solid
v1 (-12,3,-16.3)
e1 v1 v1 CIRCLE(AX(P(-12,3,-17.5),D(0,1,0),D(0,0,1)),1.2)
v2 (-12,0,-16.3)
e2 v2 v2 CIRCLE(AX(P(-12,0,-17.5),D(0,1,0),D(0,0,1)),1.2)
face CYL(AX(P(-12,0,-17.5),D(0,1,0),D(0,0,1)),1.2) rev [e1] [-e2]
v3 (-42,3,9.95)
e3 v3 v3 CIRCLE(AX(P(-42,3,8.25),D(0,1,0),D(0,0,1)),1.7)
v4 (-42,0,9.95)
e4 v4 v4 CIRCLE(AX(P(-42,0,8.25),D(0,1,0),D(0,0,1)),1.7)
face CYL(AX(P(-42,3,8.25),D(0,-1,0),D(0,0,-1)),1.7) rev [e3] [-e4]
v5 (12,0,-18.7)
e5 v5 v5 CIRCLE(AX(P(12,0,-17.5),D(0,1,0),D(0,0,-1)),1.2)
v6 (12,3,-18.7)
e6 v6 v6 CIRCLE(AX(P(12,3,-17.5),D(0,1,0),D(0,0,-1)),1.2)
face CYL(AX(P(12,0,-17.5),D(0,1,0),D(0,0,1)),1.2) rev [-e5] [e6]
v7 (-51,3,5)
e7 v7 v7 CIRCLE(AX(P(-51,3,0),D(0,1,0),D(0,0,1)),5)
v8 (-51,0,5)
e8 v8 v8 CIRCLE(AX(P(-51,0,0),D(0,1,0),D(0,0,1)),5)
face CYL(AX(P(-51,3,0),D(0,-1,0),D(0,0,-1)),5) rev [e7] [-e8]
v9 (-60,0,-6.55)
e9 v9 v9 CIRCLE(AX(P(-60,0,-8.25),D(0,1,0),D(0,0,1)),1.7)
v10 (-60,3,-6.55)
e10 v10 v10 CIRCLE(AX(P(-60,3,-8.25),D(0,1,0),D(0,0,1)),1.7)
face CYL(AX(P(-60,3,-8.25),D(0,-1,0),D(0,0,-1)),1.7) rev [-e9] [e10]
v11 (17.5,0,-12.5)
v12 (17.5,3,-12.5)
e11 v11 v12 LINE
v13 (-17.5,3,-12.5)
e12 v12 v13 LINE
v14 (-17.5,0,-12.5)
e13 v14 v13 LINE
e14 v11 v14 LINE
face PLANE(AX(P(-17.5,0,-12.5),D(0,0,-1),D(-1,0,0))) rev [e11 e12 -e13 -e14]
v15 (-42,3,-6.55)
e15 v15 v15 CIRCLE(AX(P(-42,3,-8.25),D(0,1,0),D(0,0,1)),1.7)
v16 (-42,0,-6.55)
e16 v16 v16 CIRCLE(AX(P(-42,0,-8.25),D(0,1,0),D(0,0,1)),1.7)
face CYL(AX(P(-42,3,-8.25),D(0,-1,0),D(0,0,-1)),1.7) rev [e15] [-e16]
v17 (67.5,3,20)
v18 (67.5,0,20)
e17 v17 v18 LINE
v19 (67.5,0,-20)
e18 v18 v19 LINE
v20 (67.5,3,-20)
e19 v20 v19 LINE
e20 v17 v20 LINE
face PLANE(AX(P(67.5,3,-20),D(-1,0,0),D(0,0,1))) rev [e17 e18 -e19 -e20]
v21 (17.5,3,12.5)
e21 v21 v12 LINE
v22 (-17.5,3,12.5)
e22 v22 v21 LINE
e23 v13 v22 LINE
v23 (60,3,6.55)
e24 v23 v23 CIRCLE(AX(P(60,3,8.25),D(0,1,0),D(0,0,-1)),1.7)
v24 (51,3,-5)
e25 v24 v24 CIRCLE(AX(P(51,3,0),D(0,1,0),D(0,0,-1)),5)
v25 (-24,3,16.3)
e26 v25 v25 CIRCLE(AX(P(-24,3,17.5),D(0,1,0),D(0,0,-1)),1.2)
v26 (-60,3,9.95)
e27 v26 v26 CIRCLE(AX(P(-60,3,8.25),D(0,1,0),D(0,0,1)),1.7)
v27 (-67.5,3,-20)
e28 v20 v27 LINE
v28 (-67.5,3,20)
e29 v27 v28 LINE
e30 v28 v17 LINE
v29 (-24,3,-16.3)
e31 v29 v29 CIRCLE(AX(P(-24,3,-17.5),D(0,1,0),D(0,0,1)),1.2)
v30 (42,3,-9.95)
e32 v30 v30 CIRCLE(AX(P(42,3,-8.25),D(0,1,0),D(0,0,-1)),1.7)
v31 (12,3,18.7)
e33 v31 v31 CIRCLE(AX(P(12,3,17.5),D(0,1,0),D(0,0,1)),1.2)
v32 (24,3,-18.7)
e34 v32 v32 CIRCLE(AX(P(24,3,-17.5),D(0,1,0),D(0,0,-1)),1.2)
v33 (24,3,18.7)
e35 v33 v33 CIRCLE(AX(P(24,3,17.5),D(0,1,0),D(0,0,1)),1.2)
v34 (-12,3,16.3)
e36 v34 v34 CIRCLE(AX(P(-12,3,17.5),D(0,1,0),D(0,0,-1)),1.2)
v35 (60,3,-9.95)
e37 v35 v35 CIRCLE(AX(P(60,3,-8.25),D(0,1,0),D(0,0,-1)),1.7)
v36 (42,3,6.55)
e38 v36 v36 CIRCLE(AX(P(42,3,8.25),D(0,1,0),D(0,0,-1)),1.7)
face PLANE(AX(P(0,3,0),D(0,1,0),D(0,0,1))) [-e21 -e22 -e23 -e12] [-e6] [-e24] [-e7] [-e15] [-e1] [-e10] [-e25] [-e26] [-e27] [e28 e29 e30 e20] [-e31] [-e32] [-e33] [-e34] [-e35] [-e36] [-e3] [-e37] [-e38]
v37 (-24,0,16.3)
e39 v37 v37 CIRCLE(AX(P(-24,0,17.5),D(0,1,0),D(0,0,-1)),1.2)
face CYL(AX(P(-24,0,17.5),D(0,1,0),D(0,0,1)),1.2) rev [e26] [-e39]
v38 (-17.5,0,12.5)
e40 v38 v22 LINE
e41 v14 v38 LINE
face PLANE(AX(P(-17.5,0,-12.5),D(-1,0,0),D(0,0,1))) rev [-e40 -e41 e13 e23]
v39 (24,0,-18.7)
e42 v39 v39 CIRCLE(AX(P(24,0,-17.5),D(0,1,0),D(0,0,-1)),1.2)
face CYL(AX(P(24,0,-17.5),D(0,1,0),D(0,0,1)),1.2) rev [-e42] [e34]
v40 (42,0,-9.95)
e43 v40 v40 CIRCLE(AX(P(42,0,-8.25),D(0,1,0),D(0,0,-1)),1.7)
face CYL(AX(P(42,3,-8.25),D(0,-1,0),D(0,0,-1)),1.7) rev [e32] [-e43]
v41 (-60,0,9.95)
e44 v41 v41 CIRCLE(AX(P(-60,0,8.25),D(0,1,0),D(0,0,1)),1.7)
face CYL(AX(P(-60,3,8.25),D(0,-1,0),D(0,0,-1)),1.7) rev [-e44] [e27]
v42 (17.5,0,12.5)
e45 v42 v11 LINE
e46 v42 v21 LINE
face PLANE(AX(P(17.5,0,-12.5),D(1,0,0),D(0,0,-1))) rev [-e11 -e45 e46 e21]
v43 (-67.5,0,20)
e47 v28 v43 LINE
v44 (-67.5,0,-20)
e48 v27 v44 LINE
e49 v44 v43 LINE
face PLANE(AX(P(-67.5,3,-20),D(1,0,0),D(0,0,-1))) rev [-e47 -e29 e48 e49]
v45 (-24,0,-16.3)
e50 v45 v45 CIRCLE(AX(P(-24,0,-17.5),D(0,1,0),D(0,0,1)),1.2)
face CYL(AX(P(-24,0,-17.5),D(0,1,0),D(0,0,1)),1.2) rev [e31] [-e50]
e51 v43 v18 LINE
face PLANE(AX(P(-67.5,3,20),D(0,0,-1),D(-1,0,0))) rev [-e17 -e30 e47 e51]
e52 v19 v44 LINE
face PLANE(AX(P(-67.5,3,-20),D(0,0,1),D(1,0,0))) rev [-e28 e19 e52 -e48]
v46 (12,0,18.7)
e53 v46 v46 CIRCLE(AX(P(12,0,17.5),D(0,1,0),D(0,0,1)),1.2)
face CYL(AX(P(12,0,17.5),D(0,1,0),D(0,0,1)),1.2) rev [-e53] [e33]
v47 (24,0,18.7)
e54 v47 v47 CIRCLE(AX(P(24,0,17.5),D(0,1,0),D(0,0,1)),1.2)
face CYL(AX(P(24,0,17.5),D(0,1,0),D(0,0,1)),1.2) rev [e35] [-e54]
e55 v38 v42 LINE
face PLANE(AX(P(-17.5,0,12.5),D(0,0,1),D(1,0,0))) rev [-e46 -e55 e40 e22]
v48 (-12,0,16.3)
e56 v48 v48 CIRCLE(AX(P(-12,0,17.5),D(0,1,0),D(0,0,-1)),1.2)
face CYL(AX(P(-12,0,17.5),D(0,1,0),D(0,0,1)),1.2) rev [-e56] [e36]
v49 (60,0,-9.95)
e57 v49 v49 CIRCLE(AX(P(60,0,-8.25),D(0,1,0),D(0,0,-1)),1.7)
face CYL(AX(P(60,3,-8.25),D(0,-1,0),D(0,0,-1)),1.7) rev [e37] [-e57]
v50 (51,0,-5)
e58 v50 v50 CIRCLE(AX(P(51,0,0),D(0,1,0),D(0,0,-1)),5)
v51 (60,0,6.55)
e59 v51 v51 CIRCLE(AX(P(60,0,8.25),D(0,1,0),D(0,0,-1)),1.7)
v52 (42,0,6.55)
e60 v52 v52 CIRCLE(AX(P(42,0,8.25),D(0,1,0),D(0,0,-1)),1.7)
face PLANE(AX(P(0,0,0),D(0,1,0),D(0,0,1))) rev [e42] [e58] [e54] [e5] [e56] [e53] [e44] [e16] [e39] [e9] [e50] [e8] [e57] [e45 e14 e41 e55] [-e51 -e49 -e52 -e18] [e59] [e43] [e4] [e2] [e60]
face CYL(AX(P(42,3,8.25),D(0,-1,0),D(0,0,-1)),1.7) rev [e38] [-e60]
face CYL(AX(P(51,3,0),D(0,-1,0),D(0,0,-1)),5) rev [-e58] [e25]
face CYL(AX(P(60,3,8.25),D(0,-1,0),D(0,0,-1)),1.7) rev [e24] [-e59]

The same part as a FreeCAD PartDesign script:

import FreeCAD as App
import Part
import Sketcher

V = App.Vector
Q = App.Units.Quantity


def add_polygon(sketch, points):
    """Adds a closed chain of lines whose ends are joined by coincident constraints."""
    first, n = sketch.GeometryCount, len(points)
    for a, b in zip(points, points[1:] + points[:1]):
        sketch.addGeometry(Part.LineSegment(App.Vector(*a, 0), App.Vector(*b, 0)), False)
    for i in range(n):
        sketch.addConstraint(Sketcher.Constraint("Coincident", first + i, 2, first + (i + 1) % n, 1))

doc = App.newDocument("Part")
params = doc.addObject("Spreadsheet::Sheet", "Params")
for row, (alias, value) in enumerate([
    ("sketch1_diameter", "10 mm"),
    ("sketch1_diameter2", "3.4 mm"),
    ("sketch1_width", "135 mm"),
    ("sketch1_width2", "10 mm"),
    ("sketch1_height", "40 mm"),
    ("pad1_length", "3 mm"),
    ("sketch2_diameter", "2.4 mm"),
    ("sketch3_width", "35 mm"),
    ("sketch3_height", "25 mm"),
], start=1):
    params.set(f"A{row}", alias)
    params.set(f"B{row}", "=" + value)
    params.setAlias(f"B{row}", alias)

body = doc.addObject("PartDesign::Body", "Body")

sketch1 = body.newObject("Sketcher::SketchObject", "Sketch")
sketch1.AttachmentSupport = (doc.getObject("XZ_Plane"), [""])
sketch1.MapMode = "FlatFace"
add_polygon(sketch1, [(-67.5, -20), (-67.5, 20), (67.5, 20), (67.5, -20)])
sketch1.addGeometry(Part.Circle(V(-60, 8.2, 0), V(0, 0, 1), 1.7), False)
sketch1.addGeometry(Part.Circle(V(-42, 8.2, 0), V(0, 0, 1), 1.7), False)
sketch1.addGeometry(Part.Circle(V(42, 8.2, 0), V(0, 0, 1), 1.7), False)
sketch1.addGeometry(Part.Circle(V(60, 8.2, 0), V(0, 0, 1), 1.7), False)
sketch1.addGeometry(Part.Circle(V(-51, 0, 0), V(0, 0, 1), 5), False)
sketch1.addGeometry(Part.Circle(V(-60, -8.2, 0), V(0, 0, 1), 1.7), False)
sketch1.addGeometry(Part.Circle(V(-42, -8.2, 0), V(0, 0, 1), 1.7), False)
add_polygon(sketch1, [(5, 10), (-5, 10), (-5, -10), (5, -10)])
sketch1.addGeometry(Part.Circle(V(51, 0, 0), V(0, 0, 1), 5), False)
sketch1.addGeometry(Part.Circle(V(42, -8.2, 0), V(0, 0, 1), 1.7), False)
sketch1.addGeometry(Part.Circle(V(60, -8.2, 0), V(0, 0, 1), 1.7), False)
sketch1.addConstraint(Sketcher.Constraint("Vertical", 0))
sketch1.addConstraint(Sketcher.Constraint("Horizontal", 1))
sketch1.addConstraint(Sketcher.Constraint("Vertical", 2))
sketch1.addConstraint(Sketcher.Constraint("Horizontal", 3))
sketch1.addConstraint(Sketcher.Constraint("Horizontal", 11))
sketch1.addConstraint(Sketcher.Constraint("Vertical", 12))
sketch1.addConstraint(Sketcher.Constraint("Horizontal", 13))
sketch1.addConstraint(Sketcher.Constraint("Vertical", 14))
sketch1.addConstraint(Sketcher.Constraint("Equal", 4, 5))
sketch1.addConstraint(Sketcher.Constraint("Equal", 5, 6))
sketch1.addConstraint(Sketcher.Constraint("Equal", 6, 7))
sketch1.addConstraint(Sketcher.Constraint("Equal", 7, 9))
sketch1.addConstraint(Sketcher.Constraint("Equal", 9, 10))
sketch1.addConstraint(Sketcher.Constraint("Equal", 8, 15))
sketch1.addConstraint(Sketcher.Constraint("Equal", 10, 16))
sketch1.addConstraint(Sketcher.Constraint("Equal", 16, 17))
sketch1.addConstraint(Sketcher.Constraint("Symmetric", 7, 3, 9, 3, -1, 1))
sketch1.addConstraint(Sketcher.Constraint("Symmetric", 6, 3, 10, 3, -1, 1))
sketch1.addConstraint(Sketcher.Constraint("Symmetric", 8, 3, 15, 3, -1, 1))
sketch1.addConstraint(Sketcher.Constraint("Symmetric", 5, 3, 16, 3, -1, 1))
sketch1.addConstraint(Sketcher.Constraint("Symmetric", 4, 3, 17, 3, -1, 1))
sketch1.addConstraint(Sketcher.Constraint("Symmetric", 0, 2, 2, 2, -1, 1))
sketch1.addConstraint(Sketcher.Constraint("Symmetric", 11, 2, 13, 2, -1, 1))
sketch1.addConstraint(Sketcher.Constraint("Symmetric", 5, 3, 6, 3, -2))
sketch1.addConstraint(Sketcher.Constraint("Symmetric", 4, 3, 7, 3, -2))
sketch1.addConstraint(Sketcher.Constraint("PointOnObject", 8, 3, -1))
sketch1.addConstraint(Sketcher.Constraint("Horizontal", 4, 3, 5, 3))
sketch1.addConstraint(Sketcher.Constraint("Diameter", 8, Q("10 mm")))
sketch1.addConstraint(Sketcher.Constraint("Diameter", 4, Q("3.4 mm")))
sketch1.addConstraint(Sketcher.Constraint("DistanceX", 1, 1, 1, 2, Q("135 mm")))
sketch1.addConstraint(Sketcher.Constraint("DistanceX", 11, 2, 11, 1, Q("10 mm")))
sketch1.addConstraint(Sketcher.Constraint("DistanceY", 0, 1, 0, 2, Q("40 mm")))
sketch1.addConstraint(Sketcher.Constraint("DistanceY", 12, 2, 12, 1, Q("20 mm")))
sketch1.addConstraint(Sketcher.Constraint("DistanceX", 4, 3, -1, 1, Q("60 mm")))
sketch1.addConstraint(Sketcher.Constraint("DistanceX", 5, 3, -1, 1, Q("42 mm")))
sketch1.addConstraint(Sketcher.Constraint("DistanceX", 8, 3, -1, 1, Q("51 mm")))
sketch1.addConstraint(Sketcher.Constraint("DistanceY", 9, 3, 4, 3, Q("16.5 mm")))
sketch1.setExpression("Constraints[35]", "Params.sketch1_diameter")
sketch1.setExpression("Constraints[36]", "Params.sketch1_diameter2")
sketch1.setExpression("Constraints[37]", "Params.sketch1_width")
sketch1.setExpression("Constraints[38]", "Params.sketch1_width2")
sketch1.setExpression("Constraints[39]", "Params.sketch1_height")
pad1 = body.newObject("PartDesign::Pad", "Pad")
pad1.Profile = sketch1
pad1.setExpression("Length", "Params.pad1_length")
pad1.Reversed = True

sketch2 = body.newObject("Sketcher::SketchObject", "Sketch001")
sketch2.AttachmentSupport = (doc.getObject("XZ_Plane"), [""])
sketch2.MapMode = "FlatFace"
sketch2.AttachmentOffset = App.Placement(V(0, 0, -3), App.Rotation())
sketch2.addGeometry(Part.Circle(V(-12, -17.5, 0), V(0, 0, 1), 1.2), False)
sketch2.addGeometry(Part.Circle(V(-12, 17.5, 0), V(0, 0, 1), 1.2), False)
sketch2.addGeometry(Part.Circle(V(-24, -17.5, 0), V(0, 0, 1), 1.2), False)
sketch2.addGeometry(Part.Circle(V(-24, 17.5, 0), V(0, 0, 1), 1.2), False)
sketch2.addGeometry(Part.Circle(V(24, 17.5, 0), V(0, 0, 1), 1.2), False)
sketch2.addGeometry(Part.Circle(V(24, -17.5, 0), V(0, 0, 1), 1.2), False)
sketch2.addGeometry(Part.Circle(V(12, 17.5, 0), V(0, 0, 1), 1.2), False)
sketch2.addGeometry(Part.Circle(V(12, -17.5, 0), V(0, 0, 1), 1.2), False)
sketch2.addConstraint(Sketcher.Constraint("Equal", 0, 1))
sketch2.addConstraint(Sketcher.Constraint("Equal", 1, 2))
sketch2.addConstraint(Sketcher.Constraint("Equal", 2, 3))
sketch2.addConstraint(Sketcher.Constraint("Equal", 3, 4))
sketch2.addConstraint(Sketcher.Constraint("Equal", 4, 5))
sketch2.addConstraint(Sketcher.Constraint("Equal", 5, 6))
sketch2.addConstraint(Sketcher.Constraint("Equal", 6, 7))
sketch2.addConstraint(Sketcher.Constraint("Symmetric", 2, 3, 4, 3, -1, 1))
sketch2.addConstraint(Sketcher.Constraint("Symmetric", 3, 3, 5, 3, -1, 1))
sketch2.addConstraint(Sketcher.Constraint("Symmetric", 0, 3, 6, 3, -1, 1))
sketch2.addConstraint(Sketcher.Constraint("Symmetric", 1, 3, 7, 3, -1, 1))
sketch2.addConstraint(Sketcher.Constraint("Symmetric", 3, 3, 4, 3, -2))
sketch2.addConstraint(Sketcher.Constraint("Symmetric", 1, 3, 6, 3, -2))
sketch2.addConstraint(Sketcher.Constraint("Horizontal", 0, 3, 2, 3))
sketch2.addConstraint(Sketcher.Constraint("Diameter", 0, Q("2.4 mm")))
sketch2.addConstraint(Sketcher.Constraint("DistanceX", 0, 3, -1, 1, Q("12 mm")))
sketch2.addConstraint(Sketcher.Constraint("DistanceX", 2, 3, -1, 1, Q("24 mm")))
sketch2.addConstraint(Sketcher.Constraint("DistanceY", 0, 3, 1, 3, Q("35 mm")))
sketch2.setExpression("Constraints[14]", "Params.sketch2_diameter")
pocket1 = body.newObject("PartDesign::Pocket", "Pocket")
pocket1.Profile = sketch2
pocket1.Type = "ThroughAll"
pocket1.Reversed = True

sketch3 = body.newObject("Sketcher::SketchObject", "Sketch002")
sketch3.AttachmentSupport = (doc.getObject("XZ_Plane"), [""])
sketch3.MapMode = "FlatFace"
sketch3.AttachmentOffset = App.Placement(V(0, 0, -3), App.Rotation())
add_polygon(sketch3, [(-18, -12), (-18, 12), (18, 12), (18, -12)])
sketch3.addConstraint(Sketcher.Constraint("Vertical", 0))
sketch3.addConstraint(Sketcher.Constraint("Horizontal", 1))
sketch3.addConstraint(Sketcher.Constraint("Vertical", 2))
sketch3.addConstraint(Sketcher.Constraint("Horizontal", 3))
sketch3.addConstraint(Sketcher.Constraint("Symmetric", 0, 2, 2, 2, -1, 1))
sketch3.addConstraint(Sketcher.Constraint("DistanceX", 1, 1, 1, 2, Q("35 mm")))
sketch3.addConstraint(Sketcher.Constraint("DistanceY", 0, 1, 0, 2, Q("25 mm")))
sketch3.setExpression("Constraints[9]", "Params.sketch3_width")
sketch3.setExpression("Constraints[10]", "Params.sketch3_height")
pocket2 = body.newObject("PartDesign::Pocket", "Pocket001")
pocket2.Profile = sketch3
pocket2.Type = "ThroughAll"
pocket2.Reversed = True

doc.recompute()
